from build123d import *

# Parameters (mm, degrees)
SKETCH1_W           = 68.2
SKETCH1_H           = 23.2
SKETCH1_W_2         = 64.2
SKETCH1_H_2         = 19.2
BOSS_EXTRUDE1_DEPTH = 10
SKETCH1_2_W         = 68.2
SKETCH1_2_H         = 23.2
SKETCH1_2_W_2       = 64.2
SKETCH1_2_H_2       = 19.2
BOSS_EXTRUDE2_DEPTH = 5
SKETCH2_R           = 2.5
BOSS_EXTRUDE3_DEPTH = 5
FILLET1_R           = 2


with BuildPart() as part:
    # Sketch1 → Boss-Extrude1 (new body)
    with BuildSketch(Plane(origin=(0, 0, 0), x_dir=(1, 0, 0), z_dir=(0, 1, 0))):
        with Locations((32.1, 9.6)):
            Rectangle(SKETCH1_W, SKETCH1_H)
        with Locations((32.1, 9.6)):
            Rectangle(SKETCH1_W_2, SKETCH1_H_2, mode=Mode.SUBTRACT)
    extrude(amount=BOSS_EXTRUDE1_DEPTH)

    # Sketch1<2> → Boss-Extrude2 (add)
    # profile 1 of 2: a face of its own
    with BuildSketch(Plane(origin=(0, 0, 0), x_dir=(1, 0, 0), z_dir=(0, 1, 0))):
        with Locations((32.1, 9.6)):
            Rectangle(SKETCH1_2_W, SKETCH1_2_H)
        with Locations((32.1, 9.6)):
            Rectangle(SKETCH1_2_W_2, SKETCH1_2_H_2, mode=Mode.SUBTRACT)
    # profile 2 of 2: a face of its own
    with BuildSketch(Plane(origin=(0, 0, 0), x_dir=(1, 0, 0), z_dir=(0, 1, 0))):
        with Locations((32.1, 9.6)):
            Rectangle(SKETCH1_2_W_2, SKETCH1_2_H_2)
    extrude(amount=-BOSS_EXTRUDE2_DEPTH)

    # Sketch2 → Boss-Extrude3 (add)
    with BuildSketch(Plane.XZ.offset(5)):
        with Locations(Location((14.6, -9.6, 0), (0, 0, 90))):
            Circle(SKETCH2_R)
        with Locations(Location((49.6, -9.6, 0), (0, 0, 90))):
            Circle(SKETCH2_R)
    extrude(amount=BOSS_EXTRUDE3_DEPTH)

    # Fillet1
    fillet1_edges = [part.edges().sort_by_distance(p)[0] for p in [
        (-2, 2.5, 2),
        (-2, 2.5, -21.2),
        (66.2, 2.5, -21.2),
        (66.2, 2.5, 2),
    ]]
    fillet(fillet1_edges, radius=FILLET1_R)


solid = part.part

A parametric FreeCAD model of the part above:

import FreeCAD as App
import Part
import Sketcher
from FreeCAD import Vector
Q = App.Units.Quantity


def edges_at(feature, points):
    """Names of the edges that pass closest to the given points."""
    edges = feature.Shape.Edges
    near = lambda p: min(range(len(edges)), key=lambda i: edges[i].distToShape(Part.Vertex(*p))[0])
    return sorted({f"Edge{near(p) + 1}" for p in points})

doc = App.newDocument("Part")
params = doc.addObject("Spreadsheet::Sheet", "Params")
for row, (alias, value) in enumerate([
    ("sketch1_width", "68.2 mm"),
    ("sketch1_width2", "64.2 mm"),
    ("sketch1_height", "23.2 mm"),
    ("sketch1_height2", "19.2 mm"),
    ("pad1_length", "10 mm"),
    ("sketch2_width", "68.2 mm"),
    ("sketch2_height", "23.2 mm"),
    ("pad2_length", "5 mm"),
    ("sketch3_diameter", "5 mm"),
    ("pad3_length", "5 mm"),
    ("fillet_radius", "2 mm"),
], start=1):
    params.set(f"A{row}", alias)
    params.set(f"B{row}", "=" + value)
    params.setAlias(f"B{row}", alias)

body = doc.addObject("PartDesign::Body", "Body")

sketch1 = body.newObject("Sketcher::SketchObject", "Sketch")
sketch1.AttachmentSupport = (doc.getObject("XZ_Plane"), [""])
sketch1.MapMode = "FlatFace"
sketch1.addGeometry(Part.LineSegment(Vector(-2, -21, 0), Vector(-2, 2, 0)), False)
sketch1.addGeometry(Part.LineSegment(Vector(-2, 2, 0), Vector(66, 2, 0)), False)
sketch1.addGeometry(Part.LineSegment(Vector(66, 2, 0), Vector(66, -21, 0)), False)
sketch1.addGeometry(Part.LineSegment(Vector(66, -21, 0), Vector(-2, -21, 0)), False)
sketch1.addGeometry(Part.LineSegment(Vector(64, 0, 0), Vector(0, 0, 0)), False)
sketch1.addGeometry(Part.LineSegment(Vector(0, 0, 0), Vector(0, -19, 0)), False)
sketch1.addGeometry(Part.LineSegment(Vector(0, -19, 0), Vector(64, -19, 0)), False)
sketch1.addGeometry(Part.LineSegment(Vector(64, -19, 0), Vector(64, 0, 0)), False)
sketch1.addConstraint(Sketcher.Constraint("Coincident", 0, 2, 1, 1))
sketch1.addConstraint(Sketcher.Constraint("Coincident", 1, 2, 2, 1))
sketch1.addConstraint(Sketcher.Constraint("Coincident", 2, 2, 3, 1))
sketch1.addConstraint(Sketcher.Constraint("Coincident", 3, 2, 0, 1))
sketch1.addConstraint(Sketcher.Constraint("Coincident", 4, 2, 5, 1))
sketch1.addConstraint(Sketcher.Constraint("Coincident", 5, 2, 6, 1))
sketch1.addConstraint(Sketcher.Constraint("Coincident", 6, 2, 7, 1))
sketch1.addConstraint(Sketcher.Constraint("Coincident", 7, 2, 4, 1))
sketch1.addConstraint(Sketcher.Constraint("Vertical", 0))
sketch1.addConstraint(Sketcher.Constraint("Horizontal", 1))
sketch1.addConstraint(Sketcher.Constraint("Vertical", 2))
sketch1.addConstraint(Sketcher.Constraint("Horizontal", 3))
sketch1.addConstraint(Sketcher.Constraint("Horizontal", 4))
sketch1.addConstraint(Sketcher.Constraint("Vertical", 5))
sketch1.addConstraint(Sketcher.Constraint("Horizontal", 6))
sketch1.addConstraint(Sketcher.Constraint("Vertical", 7))
sketch1.addConstraint(Sketcher.Constraint("Coincident", 4, 2, -1, 1))
sketch1.addConstraint(Sketcher.Constraint("DistanceX", 1, 1, 1, 2, Q("68.2 mm")))
sketch1.addConstraint(Sketcher.Constraint("DistanceX", 4, 2, 4, 1, Q("64.2 mm")))
sketch1.addConstraint(Sketcher.Constraint("DistanceY", 0, 1, 0, 2, Q("23.2 mm")))
sketch1.addConstraint(Sketcher.Constraint("DistanceY", 5, 2, 5, 1, Q("19.2 mm")))
sketch1.addConstraint(Sketcher.Constraint("DistanceX", 0, 2, -1, 1, Q("2 mm")))
sketch1.addConstraint(Sketcher.Constraint("DistanceY", -1, 1, 0, 2, Q("2 mm")))
sketch1.setExpression("Constraints[17]", "Params.sketch1_width")
sketch1.setExpression("Constraints[18]", "Params.sketch1_width2")
sketch1.setExpression("Constraints[19]", "Params.sketch1_height")
sketch1.setExpression("Constraints[20]", "Params.sketch1_height2")
pad1 = body.newObject("PartDesign::Pad", "Pad")
pad1.Profile = sketch1
pad1.setExpression("Length", "Params.pad1_length")
pad1.Reversed = True

sketch2 = body.newObject("Sketcher::SketchObject", "Sketch001")
sketch2.AttachmentSupport = (doc.getObject("XZ_Plane"), [""])
sketch2.MapMode = "FlatFace"
sketch2.addGeometry(Part.LineSegment(Vector(-2, -21, 0), Vector(-2, 2, 0)), False)
sketch2.addGeometry(Part.LineSegment(Vector(-2, 2, 0), Vector(66, 2, 0)), False)
sketch2.addGeometry(Part.LineSegment(Vector(66, 2, 0), Vector(66, -21, 0)), False)
sketch2.addGeometry(Part.LineSegment(Vector(66, -21, 0), Vector(-2, -21, 0)), False)
sketch2.addConstraint(Sketcher.Constraint("Coincident", 0, 2, 1, 1))
sketch2.addConstraint(Sketcher.Constraint("Coincident", 1, 2, 2, 1))
sketch2.addConstraint(Sketcher.Constraint("Coincident", 2, 2, 3, 1))
sketch2.addConstraint(Sketcher.Constraint("Coincident", 3, 2, 0, 1))
sketch2.addConstraint(Sketcher.Constraint("Vertical", 0))
sketch2.addConstraint(Sketcher.Constraint("Horizontal", 1))
sketch2.addConstraint(Sketcher.Constraint("Vertical", 2))
sketch2.addConstraint(Sketcher.Constraint("Horizontal", 3))
sketch2.addConstraint(Sketcher.Constraint("DistanceX", 1, 1, 1, 2, Q("68.2 mm")))
sketch2.addConstraint(Sketcher.Constraint("DistanceY", 0, 1, 0, 2, Q("23.2 mm")))
sketch2.addConstraint(Sketcher.Constraint("DistanceX", 0, 2, -1, 1, Q("2 mm")))
sketch2.addConstraint(Sketcher.Constraint("DistanceY", -1, 1, 0, 2, Q("2 mm")))
sketch2.setExpression("Constraints[8]", "Params.sketch2_width")
sketch2.setExpression("Constraints[9]", "Params.sketch2_height")
pad2 = body.newObject("PartDesign::Pad", "Pad001")
pad2.Profile = sketch2
pad2.setExpression("Length", "Params.pad2_length")

sketch3 = body.newObject("Sketcher::SketchObject", "Sketch002")
sketch3.AttachmentSupport = (doc.getObject("XZ_Plane"), [""])
sketch3.MapMode = "FlatFace"
sketch3.AttachmentOffset = App.Placement(Vector(0, 0, 5), App.Rotation())
sketch3.addGeometry(Part.Circle(Vector(14.6, -9.6, 0), Vector(0, 0, 1), 2.5), False)
sketch3.addGeometry(Part.Circle(Vector(49.6, -9.6, 0), Vector(0, 0, 1), 2.5), False)
sketch3.addConstraint(Sketcher.Constraint("Equal", 0, 1))
sketch3.addConstraint(Sketcher.Constraint("Horizontal", 0, 3, 1, 3))
sketch3.addConstraint(Sketcher.Constraint("Diameter", 0, Q("5 mm")))
sketch3.addConstraint(Sketcher.Constraint("DistanceX", 0, 3, 1, 3, Q("35 mm")))
sketch3.addConstraint(Sketcher.Constraint("DistanceX", -1, 1, 0, 3, Q("14.6 mm")))
sketch3.addConstraint(Sketcher.Constraint("DistanceY", 0, 3, -1, 1, Q("9.6 mm")))
sketch3.setExpression("Constraints[2]", "Params.sketch3_diameter")
pad3 = body.newObject("PartDesign::Pad", "Pad002")
pad3.Profile = sketch3
pad3.setExpression("Length", "Params.pad3_length")
doc.recompute()

fillet = body.newObject("PartDesign::Fillet", "Fillet")
fillet.Base = (pad3, edges_at(pad3, [
    (-2, 2.5, 2),
    (-2, 2.5, -21.2),
    (66.2, 2.5, -21.2),
    (66.2, 2.5, 2),
]))
fillet.setExpression("Radius", "Params.fillet_radius")

doc.recompute()
